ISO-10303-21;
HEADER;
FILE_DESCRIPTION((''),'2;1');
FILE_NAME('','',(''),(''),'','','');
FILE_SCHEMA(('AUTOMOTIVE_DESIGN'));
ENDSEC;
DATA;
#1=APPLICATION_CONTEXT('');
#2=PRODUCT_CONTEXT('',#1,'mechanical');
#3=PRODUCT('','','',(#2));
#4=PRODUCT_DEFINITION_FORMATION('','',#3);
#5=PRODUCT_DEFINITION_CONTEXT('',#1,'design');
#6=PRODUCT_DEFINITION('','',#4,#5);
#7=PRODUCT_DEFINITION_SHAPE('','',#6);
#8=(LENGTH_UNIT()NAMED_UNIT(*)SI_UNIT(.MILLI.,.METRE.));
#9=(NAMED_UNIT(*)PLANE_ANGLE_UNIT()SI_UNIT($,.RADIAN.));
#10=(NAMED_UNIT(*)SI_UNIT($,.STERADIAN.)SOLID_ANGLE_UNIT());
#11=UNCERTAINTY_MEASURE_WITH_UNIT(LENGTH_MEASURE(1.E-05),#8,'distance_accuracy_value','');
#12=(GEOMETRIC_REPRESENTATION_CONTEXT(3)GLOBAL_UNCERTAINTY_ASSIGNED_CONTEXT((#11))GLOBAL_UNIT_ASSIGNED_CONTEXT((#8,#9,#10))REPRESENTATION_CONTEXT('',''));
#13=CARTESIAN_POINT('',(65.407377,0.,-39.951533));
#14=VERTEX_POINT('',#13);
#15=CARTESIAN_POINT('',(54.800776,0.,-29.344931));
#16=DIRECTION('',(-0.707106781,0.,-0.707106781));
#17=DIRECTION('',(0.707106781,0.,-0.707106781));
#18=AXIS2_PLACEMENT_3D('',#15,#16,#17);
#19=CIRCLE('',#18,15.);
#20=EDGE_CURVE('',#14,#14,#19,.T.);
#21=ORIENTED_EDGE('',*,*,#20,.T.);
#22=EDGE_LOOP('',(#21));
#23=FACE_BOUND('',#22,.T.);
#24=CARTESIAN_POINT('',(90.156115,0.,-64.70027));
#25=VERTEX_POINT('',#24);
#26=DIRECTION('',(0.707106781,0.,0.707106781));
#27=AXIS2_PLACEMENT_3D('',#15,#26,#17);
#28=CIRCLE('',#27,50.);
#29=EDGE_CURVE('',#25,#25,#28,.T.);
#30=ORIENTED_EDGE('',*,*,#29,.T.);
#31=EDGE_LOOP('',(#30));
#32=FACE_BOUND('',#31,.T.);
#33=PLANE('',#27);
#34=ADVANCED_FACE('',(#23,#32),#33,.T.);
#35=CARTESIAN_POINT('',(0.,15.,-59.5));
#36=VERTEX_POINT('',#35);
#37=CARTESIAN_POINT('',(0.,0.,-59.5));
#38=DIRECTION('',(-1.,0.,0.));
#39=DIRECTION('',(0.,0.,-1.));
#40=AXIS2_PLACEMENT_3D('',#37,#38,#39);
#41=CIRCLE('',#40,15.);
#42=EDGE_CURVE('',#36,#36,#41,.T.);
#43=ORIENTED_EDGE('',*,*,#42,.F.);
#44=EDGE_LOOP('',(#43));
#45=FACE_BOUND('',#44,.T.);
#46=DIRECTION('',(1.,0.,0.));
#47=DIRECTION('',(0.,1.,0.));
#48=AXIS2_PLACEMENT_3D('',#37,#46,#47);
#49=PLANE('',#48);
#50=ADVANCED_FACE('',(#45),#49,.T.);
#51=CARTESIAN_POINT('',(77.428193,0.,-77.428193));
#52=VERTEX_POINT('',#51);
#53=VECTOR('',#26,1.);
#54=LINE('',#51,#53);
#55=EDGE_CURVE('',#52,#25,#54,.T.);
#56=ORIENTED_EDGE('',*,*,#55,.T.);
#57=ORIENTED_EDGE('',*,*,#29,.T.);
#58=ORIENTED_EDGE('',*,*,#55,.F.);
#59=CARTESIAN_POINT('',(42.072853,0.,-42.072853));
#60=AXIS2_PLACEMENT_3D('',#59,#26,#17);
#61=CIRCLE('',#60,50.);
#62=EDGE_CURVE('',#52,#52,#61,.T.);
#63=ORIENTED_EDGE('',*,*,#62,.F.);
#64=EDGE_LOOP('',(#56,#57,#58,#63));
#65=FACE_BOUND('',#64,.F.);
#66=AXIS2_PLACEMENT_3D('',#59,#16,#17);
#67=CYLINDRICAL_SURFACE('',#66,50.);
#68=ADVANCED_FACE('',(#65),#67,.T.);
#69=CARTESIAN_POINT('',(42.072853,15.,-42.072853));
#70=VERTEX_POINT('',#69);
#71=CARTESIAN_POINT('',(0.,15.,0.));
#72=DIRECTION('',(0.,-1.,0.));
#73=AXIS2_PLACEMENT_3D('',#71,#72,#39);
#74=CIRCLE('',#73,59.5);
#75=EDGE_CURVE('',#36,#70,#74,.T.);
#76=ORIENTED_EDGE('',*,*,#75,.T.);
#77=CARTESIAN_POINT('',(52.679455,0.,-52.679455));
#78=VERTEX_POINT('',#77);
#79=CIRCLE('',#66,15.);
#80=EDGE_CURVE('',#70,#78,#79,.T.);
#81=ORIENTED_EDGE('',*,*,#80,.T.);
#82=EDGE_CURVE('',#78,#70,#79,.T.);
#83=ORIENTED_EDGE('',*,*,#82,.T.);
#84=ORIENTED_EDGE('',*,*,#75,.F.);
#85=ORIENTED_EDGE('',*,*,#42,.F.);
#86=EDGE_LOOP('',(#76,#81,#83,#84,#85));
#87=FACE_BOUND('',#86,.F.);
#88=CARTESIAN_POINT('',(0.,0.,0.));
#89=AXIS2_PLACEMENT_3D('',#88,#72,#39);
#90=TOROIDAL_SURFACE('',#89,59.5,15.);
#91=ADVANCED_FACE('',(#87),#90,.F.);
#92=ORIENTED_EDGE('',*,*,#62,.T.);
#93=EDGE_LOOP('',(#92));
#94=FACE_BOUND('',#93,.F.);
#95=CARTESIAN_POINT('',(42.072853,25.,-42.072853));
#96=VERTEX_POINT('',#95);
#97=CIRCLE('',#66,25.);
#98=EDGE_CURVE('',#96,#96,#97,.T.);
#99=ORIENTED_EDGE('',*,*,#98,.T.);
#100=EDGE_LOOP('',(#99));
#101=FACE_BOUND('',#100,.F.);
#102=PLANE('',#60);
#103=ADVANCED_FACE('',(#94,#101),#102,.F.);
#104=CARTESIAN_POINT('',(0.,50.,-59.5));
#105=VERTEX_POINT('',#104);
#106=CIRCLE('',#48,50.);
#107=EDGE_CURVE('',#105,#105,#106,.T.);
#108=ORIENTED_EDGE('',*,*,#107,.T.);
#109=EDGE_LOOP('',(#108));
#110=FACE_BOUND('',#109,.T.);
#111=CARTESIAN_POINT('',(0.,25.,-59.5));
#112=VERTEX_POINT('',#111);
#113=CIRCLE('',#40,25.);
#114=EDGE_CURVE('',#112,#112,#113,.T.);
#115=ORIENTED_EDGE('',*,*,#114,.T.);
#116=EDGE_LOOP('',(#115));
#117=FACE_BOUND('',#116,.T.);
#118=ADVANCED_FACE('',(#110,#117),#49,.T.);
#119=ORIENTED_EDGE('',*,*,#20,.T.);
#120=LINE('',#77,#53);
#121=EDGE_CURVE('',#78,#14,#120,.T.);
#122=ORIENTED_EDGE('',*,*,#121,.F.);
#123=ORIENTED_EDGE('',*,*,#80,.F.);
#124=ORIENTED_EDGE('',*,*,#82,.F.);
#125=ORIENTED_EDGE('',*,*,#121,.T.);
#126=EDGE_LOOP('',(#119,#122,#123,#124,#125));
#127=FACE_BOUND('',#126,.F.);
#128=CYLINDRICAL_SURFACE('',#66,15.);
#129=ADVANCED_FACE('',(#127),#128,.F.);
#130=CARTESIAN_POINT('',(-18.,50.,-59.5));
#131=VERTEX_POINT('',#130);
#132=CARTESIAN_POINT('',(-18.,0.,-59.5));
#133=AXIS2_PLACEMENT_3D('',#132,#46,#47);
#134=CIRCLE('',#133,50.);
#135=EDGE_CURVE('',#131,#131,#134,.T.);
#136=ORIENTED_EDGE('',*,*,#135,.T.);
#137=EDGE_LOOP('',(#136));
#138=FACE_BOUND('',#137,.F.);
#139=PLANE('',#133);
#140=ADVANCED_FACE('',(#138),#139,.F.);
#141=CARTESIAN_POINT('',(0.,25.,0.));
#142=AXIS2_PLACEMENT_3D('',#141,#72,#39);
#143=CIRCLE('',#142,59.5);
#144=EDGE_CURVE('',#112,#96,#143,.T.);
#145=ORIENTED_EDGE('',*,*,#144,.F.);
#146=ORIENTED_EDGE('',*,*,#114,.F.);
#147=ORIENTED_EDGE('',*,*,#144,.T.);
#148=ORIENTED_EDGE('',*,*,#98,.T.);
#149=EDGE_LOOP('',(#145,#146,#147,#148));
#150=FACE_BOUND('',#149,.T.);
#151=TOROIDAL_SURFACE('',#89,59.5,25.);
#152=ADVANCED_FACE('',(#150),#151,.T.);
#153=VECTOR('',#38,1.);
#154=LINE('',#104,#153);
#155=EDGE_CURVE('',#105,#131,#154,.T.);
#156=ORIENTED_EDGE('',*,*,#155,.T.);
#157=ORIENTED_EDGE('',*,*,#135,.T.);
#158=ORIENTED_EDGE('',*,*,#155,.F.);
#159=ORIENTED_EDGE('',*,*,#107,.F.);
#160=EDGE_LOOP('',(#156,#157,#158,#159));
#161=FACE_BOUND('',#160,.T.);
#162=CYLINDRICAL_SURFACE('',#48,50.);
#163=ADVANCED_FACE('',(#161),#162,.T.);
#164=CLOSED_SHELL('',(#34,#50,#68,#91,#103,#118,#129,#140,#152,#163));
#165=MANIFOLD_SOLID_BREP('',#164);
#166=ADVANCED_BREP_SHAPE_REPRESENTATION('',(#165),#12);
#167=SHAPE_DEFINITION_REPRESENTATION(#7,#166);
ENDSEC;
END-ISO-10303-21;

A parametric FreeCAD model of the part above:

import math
import FreeCAD as App
import Part
import Sketcher
Q = App.Units.Quantity

doc = App.newDocument("Part")
params = doc.addObject("Spreadsheet::Sheet", "Params")
for row, (alias, value) in enumerate([
    ("sketch1_diameter", "100 mm"),
    ("pad1_length", "18 mm"),
    ("sketch2_diameter", "50 mm"),
    ("sketch2_diameter2", "30 mm"),
    ("sketch3_radius", "59.5 mm"),
    ("sketch4_diameter", "100 mm"),
    ("sketch4_diameter2", "30 mm"),
    ("pad2_length", "18 mm"),
], start=1):
    params.set(f"A{row}", alias)
    params.set(f"B{row}", "=" + value)
    params.setAlias(f"B{row}", alias)

body = doc.addObject("PartDesign::Body", "Body")

# Sketch on YZ plane
sketch1 = doc.addObject("Sketcher::SketchObject", "Sketch")
body.addObject(sketch1)
sketch1.AttachmentSupport = (doc.YZ_Plane, [""])
sketch1.MapMode = "FlatFace"
sketch1.addGeometry(Part.Circle(App.Vector(0, -59.5, 0), App.Vector(0, 0, 1), 50), False)
sketch1.addConstraint([
    Sketcher.Constraint("PointOnObject", 0, 3, -2),
    Sketcher.Constraint("Diameter", 0, Q("100 mm")),
    Sketcher.Constraint("DistanceY", 0, 3, -1, 1, Q("59.5 mm")),
])
sketch1.setExpression("Constraints[1]", "Params.sketch1_diameter")
pad1 = doc.addObject("PartDesign::Pad", "Pad")
body.addObject(pad1)
pad1.Profile = sketch1
pad1.setExpression("Length", "Params.pad1_length")
pad1.Reversed = True

# Sketch on YZ plane
sketch2 = doc.addObject("Sketcher::SketchObject", "Sketch001")
body.addObject(sketch2)
sketch2.AttachmentSupport = (doc.YZ_Plane, [""])
sketch2.MapMode = "FlatFace"
sketch2.addGeometry([
    Part.Circle(App.Vector(0, -59.5, 0), App.Vector(0, 0, 1), 25),
    Part.Circle(App.Vector(0, -59.5, 0), App.Vector(0, 0, 1), 15),
], False)
sketch2.addConstraint([
    Sketcher.Constraint("Coincident", 1, 3, 0, 3),
    Sketcher.Constraint("PointOnObject", 0, 3, -2),
    Sketcher.Constraint("Diameter", 0, Q("50 mm")),
    Sketcher.Constraint("Diameter", 1, Q("30 mm")),
    Sketcher.Constraint("DistanceY", 0, 3, -1, 1, Q("59.5 mm")),
])
sketch2.setExpression("Constraints[2]", "Params.sketch2_diameter")
sketch2.setExpression("Constraints[3]", "Params.sketch2_diameter2")

# Sketch on XZ plane
sketch3 = doc.addObject("Sketcher::SketchObject", "Sketch002")
body.addObject(sketch3)
sketch3.AttachmentSupport = (doc.XZ_Plane, [""])
sketch3.MapMode = "FlatFace"
sketch3.addGeometry(Part.ArcOfCircle(Part.Circle(App.Vector(0, 0, 0), App.Vector(0, 0, 1), 59.5), math.radians(-90), math.radians(-45)), False)
sketch3.addConstraint([
    Sketcher.Constraint("Coincident", 0, 3, -1, 1),
    Sketcher.Constraint("PointOnObject", 0, 1, -2),
    Sketcher.Constraint("Radius", 0, Q("59.5 mm")),
    Sketcher.Constraint("DistanceX", -1, 1, 0, 2, Q("42.072853 mm")),
])
sketch3.setExpression("Constraints[2]", "Params.sketch3_radius")
doc.recompute()

additivepipe = doc.addObject("PartDesign::AdditivePipe", "AdditivePipe")
body.addObject(additivepipe)
additivepipe.Profile = sketch2
additivepipe.Spine = (sketch3, ["Edge1"])

# Sketch on an angled plane
sketch4 = doc.addObject("Sketcher::SketchObject", "Sketch003")
body.addObject(sketch4)
sketch4.Placement = App.Placement(App.Vector(0, 0, 0), App.Rotation(App.Vector(0.707106781, 0, -0.707106781), App.Vector(0, 0.999999999, 0), App.Vector(0.707106781, 0, 0.707106781), "ZXY"))
sketch4.addGeometry([
    Part.Circle(App.Vector(59.5, 0, 0), App.Vector(0, 0, 1), 50),
    Part.Circle(App.Vector(59.5, 0, 0), App.Vector(0, 0, 1), 15),
], False)
sketch4.addConstraint([
    Sketcher.Constraint("Coincident", 1, 3, 0, 3),
    Sketcher.Constraint("PointOnObject", 0, 3, -1),
    Sketcher.Constraint("Diameter", 0, Q("100 mm")),
    Sketcher.Constraint("Diameter", 1, Q("30 mm")),
    Sketcher.Constraint("DistanceX", -1, 1, 0, 3, Q("59.5 mm")),
])
sketch4.setExpression("Constraints[2]", "Params.sketch4_diameter")
sketch4.setExpression("Constraints[3]", "Params.sketch4_diameter2")
pad2 = doc.addObject("PartDesign::Pad", "Pad001")
body.addObject(pad2)
pad2.Profile = sketch4
pad2.setExpression("Length", "Params.pad2_length")

doc.recompute()
